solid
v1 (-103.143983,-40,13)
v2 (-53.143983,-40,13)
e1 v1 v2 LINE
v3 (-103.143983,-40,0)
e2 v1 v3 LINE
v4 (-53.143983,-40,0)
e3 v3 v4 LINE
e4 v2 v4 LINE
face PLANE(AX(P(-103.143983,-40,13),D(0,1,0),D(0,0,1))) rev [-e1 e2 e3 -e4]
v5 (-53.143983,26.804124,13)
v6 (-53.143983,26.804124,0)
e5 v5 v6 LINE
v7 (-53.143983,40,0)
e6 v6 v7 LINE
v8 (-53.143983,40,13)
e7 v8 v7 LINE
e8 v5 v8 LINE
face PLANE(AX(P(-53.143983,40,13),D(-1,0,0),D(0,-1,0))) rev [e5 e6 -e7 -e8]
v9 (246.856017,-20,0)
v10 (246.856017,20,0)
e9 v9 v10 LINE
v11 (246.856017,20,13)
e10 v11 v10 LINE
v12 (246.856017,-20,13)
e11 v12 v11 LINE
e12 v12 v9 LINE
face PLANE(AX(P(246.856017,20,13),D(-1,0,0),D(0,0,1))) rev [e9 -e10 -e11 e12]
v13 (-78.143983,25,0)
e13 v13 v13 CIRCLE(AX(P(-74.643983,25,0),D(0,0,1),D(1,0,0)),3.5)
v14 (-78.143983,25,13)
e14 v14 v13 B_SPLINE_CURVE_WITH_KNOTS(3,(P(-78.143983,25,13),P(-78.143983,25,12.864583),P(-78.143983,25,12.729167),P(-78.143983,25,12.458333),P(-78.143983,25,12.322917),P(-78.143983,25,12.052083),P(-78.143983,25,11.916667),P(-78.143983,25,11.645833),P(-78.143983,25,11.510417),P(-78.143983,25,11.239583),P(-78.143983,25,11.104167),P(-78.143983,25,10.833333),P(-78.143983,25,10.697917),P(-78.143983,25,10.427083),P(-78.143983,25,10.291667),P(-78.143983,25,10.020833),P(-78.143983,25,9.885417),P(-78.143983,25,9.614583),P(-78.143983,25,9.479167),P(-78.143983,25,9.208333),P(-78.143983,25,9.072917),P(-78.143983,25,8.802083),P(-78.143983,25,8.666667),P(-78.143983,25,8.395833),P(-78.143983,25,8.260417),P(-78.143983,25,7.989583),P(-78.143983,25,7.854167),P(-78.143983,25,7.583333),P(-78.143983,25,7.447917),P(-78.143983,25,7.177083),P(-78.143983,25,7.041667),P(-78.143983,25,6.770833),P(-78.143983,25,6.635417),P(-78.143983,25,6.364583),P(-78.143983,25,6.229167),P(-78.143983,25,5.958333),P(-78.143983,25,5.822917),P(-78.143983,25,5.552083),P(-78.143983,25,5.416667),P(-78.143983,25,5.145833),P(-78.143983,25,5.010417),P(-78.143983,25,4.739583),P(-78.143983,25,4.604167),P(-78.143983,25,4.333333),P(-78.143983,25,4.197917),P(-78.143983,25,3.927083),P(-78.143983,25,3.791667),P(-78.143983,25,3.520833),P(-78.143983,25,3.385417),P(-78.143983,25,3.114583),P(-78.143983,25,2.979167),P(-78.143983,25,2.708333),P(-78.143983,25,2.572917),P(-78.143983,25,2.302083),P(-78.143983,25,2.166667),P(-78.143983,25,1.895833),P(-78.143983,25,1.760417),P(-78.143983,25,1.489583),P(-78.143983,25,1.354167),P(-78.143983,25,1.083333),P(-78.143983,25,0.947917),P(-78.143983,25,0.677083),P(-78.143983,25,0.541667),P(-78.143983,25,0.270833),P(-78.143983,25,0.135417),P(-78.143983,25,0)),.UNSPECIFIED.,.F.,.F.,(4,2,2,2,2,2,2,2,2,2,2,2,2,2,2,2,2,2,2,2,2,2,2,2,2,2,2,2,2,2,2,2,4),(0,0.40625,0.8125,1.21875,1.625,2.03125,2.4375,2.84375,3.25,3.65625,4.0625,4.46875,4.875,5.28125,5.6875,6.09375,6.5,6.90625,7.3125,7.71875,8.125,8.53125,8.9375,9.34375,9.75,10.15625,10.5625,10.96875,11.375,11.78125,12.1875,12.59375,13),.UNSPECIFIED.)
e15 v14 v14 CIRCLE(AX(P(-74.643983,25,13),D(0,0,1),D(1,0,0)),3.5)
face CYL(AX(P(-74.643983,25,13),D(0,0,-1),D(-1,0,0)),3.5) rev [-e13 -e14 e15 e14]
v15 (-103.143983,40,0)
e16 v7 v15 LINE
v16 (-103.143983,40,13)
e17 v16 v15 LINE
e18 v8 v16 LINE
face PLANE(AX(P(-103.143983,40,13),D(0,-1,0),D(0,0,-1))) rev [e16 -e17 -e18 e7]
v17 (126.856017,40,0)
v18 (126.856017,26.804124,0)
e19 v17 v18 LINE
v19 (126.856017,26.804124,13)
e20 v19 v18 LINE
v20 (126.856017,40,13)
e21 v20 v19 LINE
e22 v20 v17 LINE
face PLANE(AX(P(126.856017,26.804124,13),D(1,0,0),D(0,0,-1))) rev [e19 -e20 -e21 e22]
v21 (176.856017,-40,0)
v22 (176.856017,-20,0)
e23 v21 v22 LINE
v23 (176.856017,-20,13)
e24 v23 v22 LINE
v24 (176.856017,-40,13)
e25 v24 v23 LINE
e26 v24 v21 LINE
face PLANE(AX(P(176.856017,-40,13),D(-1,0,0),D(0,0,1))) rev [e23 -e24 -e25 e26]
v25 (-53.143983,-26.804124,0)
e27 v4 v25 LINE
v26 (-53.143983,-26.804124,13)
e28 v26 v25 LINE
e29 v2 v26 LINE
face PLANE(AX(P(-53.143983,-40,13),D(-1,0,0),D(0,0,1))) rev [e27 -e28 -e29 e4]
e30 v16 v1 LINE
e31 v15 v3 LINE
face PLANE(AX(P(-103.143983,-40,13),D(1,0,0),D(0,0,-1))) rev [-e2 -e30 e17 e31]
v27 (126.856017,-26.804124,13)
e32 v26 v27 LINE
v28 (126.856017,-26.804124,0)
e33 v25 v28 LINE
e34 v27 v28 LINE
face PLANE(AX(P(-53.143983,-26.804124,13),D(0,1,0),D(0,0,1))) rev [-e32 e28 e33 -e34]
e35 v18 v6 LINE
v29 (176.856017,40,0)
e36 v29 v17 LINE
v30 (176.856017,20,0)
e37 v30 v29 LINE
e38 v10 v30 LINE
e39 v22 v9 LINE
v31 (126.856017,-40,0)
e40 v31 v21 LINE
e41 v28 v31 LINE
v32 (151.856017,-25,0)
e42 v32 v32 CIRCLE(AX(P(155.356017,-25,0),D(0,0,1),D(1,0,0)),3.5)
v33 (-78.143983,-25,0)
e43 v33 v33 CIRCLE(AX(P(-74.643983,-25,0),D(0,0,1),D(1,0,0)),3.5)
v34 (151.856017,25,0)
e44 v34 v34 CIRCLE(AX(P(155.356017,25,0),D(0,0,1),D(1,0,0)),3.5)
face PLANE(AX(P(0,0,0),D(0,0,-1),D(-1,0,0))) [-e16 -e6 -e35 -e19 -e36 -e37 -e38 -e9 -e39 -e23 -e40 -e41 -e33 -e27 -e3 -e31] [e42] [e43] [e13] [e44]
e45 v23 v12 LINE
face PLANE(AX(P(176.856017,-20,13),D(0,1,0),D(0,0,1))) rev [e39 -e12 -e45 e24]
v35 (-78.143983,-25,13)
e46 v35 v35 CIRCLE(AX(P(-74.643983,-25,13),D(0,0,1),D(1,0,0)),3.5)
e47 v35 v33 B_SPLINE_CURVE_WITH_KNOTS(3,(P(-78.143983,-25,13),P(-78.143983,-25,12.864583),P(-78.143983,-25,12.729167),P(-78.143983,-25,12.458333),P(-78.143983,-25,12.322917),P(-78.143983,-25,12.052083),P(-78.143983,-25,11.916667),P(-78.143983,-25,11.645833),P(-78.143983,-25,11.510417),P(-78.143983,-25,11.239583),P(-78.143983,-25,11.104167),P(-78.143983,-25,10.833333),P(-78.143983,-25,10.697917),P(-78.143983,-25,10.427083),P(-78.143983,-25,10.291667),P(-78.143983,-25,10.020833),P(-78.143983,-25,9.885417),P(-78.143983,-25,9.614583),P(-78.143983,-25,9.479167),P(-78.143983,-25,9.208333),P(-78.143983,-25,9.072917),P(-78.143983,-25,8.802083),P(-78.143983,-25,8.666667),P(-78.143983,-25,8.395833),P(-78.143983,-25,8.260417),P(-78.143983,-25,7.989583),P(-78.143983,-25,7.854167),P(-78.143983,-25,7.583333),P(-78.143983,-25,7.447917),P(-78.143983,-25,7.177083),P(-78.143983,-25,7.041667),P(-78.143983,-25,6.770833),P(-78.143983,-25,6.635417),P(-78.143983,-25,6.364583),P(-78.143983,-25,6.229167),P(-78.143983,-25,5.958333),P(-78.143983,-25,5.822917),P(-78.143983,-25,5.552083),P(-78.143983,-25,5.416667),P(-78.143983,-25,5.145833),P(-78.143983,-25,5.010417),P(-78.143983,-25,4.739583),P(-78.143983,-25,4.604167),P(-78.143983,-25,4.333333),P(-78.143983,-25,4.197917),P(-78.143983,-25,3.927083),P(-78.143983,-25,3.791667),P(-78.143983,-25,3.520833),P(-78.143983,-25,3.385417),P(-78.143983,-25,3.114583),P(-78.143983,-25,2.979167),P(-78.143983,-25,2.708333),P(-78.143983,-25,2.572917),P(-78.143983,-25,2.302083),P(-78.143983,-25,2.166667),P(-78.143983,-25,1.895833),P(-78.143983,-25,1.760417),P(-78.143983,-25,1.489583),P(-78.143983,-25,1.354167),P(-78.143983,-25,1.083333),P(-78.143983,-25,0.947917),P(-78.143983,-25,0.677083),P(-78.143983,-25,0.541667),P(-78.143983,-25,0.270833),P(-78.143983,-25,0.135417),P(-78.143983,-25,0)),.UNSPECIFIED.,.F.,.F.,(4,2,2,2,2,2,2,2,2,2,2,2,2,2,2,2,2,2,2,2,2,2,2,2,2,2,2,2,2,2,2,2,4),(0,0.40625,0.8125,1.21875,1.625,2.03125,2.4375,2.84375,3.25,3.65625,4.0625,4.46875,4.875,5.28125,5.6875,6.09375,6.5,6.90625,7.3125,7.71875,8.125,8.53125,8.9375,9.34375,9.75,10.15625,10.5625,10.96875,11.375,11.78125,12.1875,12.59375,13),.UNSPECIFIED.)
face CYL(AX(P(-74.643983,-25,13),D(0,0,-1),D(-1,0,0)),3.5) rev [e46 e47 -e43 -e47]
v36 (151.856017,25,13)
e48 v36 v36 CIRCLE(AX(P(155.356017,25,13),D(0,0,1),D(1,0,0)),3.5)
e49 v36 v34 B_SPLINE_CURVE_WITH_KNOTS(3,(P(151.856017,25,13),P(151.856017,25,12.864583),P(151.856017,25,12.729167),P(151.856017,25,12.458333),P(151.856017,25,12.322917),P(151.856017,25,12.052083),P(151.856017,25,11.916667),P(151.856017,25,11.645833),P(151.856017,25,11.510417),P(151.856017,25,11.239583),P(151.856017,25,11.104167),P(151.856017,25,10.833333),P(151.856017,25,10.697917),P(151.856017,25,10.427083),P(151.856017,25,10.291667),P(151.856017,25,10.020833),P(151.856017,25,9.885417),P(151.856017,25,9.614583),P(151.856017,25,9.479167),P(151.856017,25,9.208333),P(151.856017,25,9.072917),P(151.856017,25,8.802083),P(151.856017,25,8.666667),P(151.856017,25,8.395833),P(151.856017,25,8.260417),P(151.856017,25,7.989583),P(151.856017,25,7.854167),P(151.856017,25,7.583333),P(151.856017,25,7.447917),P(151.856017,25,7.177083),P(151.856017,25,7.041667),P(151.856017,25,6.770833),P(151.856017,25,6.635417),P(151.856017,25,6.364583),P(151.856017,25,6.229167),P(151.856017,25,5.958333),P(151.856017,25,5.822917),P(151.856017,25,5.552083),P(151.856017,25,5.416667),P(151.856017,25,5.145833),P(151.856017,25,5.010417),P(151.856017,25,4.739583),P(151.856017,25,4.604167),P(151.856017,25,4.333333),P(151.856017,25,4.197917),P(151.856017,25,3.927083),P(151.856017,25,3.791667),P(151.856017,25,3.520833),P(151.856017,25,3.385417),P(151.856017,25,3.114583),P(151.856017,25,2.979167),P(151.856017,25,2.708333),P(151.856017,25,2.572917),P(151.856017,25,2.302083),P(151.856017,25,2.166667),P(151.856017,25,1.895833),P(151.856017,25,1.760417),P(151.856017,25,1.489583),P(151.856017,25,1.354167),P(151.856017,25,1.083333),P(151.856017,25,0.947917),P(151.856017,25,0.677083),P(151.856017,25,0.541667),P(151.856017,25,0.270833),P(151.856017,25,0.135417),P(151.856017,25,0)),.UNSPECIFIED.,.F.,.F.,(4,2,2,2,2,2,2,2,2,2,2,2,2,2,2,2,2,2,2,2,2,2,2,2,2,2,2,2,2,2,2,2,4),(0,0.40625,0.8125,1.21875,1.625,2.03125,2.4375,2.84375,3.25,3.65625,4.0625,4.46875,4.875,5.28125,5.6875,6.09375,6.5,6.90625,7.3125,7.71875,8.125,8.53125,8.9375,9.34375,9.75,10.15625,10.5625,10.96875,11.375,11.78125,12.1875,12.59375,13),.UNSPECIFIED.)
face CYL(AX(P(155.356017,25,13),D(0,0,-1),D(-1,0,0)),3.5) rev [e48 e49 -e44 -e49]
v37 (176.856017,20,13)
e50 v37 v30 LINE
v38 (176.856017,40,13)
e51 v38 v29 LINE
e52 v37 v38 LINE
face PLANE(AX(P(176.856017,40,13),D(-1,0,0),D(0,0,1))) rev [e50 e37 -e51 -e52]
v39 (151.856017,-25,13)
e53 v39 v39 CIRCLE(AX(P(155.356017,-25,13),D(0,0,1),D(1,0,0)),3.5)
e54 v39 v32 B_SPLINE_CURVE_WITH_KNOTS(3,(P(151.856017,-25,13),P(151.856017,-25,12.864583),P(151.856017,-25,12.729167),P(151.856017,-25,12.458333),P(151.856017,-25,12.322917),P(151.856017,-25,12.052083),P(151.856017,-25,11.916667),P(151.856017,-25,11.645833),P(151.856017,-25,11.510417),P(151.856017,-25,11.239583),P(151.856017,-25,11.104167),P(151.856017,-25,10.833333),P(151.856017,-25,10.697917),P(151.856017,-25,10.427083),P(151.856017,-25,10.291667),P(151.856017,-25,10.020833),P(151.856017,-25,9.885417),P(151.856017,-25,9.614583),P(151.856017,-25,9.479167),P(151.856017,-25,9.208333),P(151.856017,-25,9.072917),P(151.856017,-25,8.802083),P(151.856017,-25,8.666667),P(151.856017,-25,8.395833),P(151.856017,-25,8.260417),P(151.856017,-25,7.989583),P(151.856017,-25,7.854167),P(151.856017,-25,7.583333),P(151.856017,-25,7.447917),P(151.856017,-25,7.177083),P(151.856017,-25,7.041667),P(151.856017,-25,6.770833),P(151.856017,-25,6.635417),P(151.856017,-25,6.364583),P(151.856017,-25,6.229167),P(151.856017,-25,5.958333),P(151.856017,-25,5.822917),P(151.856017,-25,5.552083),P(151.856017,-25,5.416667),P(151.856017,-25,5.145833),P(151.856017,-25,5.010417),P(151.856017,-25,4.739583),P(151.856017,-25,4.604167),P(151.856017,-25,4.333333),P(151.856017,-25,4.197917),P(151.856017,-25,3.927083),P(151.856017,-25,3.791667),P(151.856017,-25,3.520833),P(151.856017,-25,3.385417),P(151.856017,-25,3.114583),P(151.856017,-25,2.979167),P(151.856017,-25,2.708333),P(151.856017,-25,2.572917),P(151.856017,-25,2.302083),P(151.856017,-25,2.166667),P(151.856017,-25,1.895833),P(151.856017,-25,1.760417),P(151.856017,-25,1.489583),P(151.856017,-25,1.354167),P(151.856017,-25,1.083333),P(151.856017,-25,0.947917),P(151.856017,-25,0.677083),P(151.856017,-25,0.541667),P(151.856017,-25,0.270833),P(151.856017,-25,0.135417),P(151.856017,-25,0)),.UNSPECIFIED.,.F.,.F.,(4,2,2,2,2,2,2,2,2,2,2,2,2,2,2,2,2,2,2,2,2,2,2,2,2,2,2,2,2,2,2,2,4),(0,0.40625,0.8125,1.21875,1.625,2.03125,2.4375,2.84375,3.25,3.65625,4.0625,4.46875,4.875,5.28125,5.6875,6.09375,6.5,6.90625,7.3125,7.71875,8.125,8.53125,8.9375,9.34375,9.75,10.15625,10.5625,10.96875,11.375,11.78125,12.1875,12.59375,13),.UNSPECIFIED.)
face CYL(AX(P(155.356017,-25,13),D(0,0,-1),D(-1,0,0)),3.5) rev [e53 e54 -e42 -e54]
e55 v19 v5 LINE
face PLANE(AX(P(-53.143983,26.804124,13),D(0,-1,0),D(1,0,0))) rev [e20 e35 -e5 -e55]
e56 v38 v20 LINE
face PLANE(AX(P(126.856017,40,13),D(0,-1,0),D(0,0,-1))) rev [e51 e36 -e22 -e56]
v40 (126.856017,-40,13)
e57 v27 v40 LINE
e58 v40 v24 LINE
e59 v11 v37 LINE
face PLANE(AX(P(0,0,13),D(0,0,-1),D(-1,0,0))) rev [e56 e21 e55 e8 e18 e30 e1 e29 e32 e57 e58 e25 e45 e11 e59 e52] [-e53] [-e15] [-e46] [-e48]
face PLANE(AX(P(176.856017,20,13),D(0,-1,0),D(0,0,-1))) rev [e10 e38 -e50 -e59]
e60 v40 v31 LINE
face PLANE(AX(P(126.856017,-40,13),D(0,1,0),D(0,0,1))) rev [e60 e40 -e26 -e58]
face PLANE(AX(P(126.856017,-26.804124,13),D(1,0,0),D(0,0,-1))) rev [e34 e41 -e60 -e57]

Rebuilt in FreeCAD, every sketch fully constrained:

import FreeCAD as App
import Part
import Sketcher

V = App.Vector

doc = App.newDocument("Part")
params = doc.addObject("Spreadsheet::Sheet", "Params")
for row, (alias, value) in enumerate([
    ("sketch1_diameter", "7 mm"),
    ("sketch1_width", "50 mm"),
    ("sketch1_width2", "180 mm"),
    ("sketch1_width3", "70 mm"),
    ("sketch1_height", "80 mm"),
    ("pad1_length", "13 mm"),
], start=1):
    params.set(f"A{row}", alias)
    params.set(f"B{row}", "=" + value)
    params.setAlias(f"B{row}", alias)

body = doc.addObject("PartDesign::Body", "Body")

# Sketch on XY plane
sketch1 = doc.addObject("Sketcher::SketchObject", "Sketch")
body.addObject(sketch1)
sketch1.AttachmentSupport = (doc.XY_Plane, [""])
sketch1.MapMode = "FlatFace"
sketch1.addGeometry([
    Part.LineSegment(V(-103.143983, 40, 0), V(-103.143983, -40, 0)),  # 0
    Part.LineSegment(V(-103.143983, -40, 0), V(-53.143983, -40, 0)),  # 1
    Part.LineSegment(V(-53.143983, -40, 0), V(-53.143983, -26.804124, 0)),  # 2
    Part.LineSegment(V(-53.143983, -26.804124, 0), V(126.856017, -26.804124, 0)),  # 3
    Part.LineSegment(V(126.856017, -26.804124, 0), V(126.856017, -40, 0)),  # 4
    Part.LineSegment(V(126.856017, -40, 0), V(176.856017, -40, 0)),  # 5
    Part.LineSegment(V(176.856017, -40, 0), V(176.856017, -20, 0)),  # 6
    Part.LineSegment(V(176.856017, -20, 0), V(246.856017, -20, 0)),  # 7
    Part.LineSegment(V(246.856017, -20, 0), V(246.856017, 20, 0)),  # 8
    Part.LineSegment(V(246.856017, 20, 0), V(176.856017, 20, 0)),  # 9
    Part.LineSegment(V(176.856017, 20, 0), V(176.856017, 40, 0)),  # 10
    Part.LineSegment(V(176.856017, 40, 0), V(126.856017, 40, 0)),  # 11
    Part.LineSegment(V(126.856017, 40, 0), V(126.856017, 26.804124, 0)),  # 12
    Part.LineSegment(V(126.856017, 26.804124, 0), V(-53.143983, 26.804124, 0)),  # 13
    Part.LineSegment(V(-53.143983, 26.804124, 0), V(-53.143983, 40, 0)),  # 14
    Part.LineSegment(V(-53.143983, 40, 0), V(-103.143983, 40, 0)),  # 15
    Part.Circle(V(155.356017, -25, 0), V(0, 0, 1), 3.5),  # 16
    Part.Circle(V(-74.643983, -25, 0), V(0, 0, 1), 3.5),  # 17
    Part.Circle(V(155.356017, 25, 0), V(0, 0, 1), 3.5),  # 18
    Part.Circle(V(-74.643983, 25, 0), V(0, 0, 1), 3.5),  # 19
], False)
sketch1.addConstraint([
    Sketcher.Constraint("Coincident", 0, 2, 1, 1),
    Sketcher.Constraint("Coincident", 1, 2, 2, 1),
    Sketcher.Constraint("Coincident", 2, 2, 3, 1),
    Sketcher.Constraint("Coincident", 3, 2, 4, 1),
    Sketcher.Constraint("Coincident", 4, 2, 5, 1),
    Sketcher.Constraint("Coincident", 5, 2, 6, 1),
    Sketcher.Constraint("Coincident", 6, 2, 7, 1),
    Sketcher.Constraint("Coincident", 7, 2, 8, 1),
    Sketcher.Constraint("Coincident", 8, 2, 9, 1),
    Sketcher.Constraint("Coincident", 9, 2, 10, 1),
    Sketcher.Constraint("Coincident", 10, 2, 11, 1),
    Sketcher.Constraint("Coincident", 11, 2, 12, 1),
    Sketcher.Constraint("Coincident", 12, 2, 13, 1),
    Sketcher.Constraint("Coincident", 13, 2, 14, 1),
    Sketcher.Constraint("Coincident", 14, 2, 15, 1),
    Sketcher.Constraint("Coincident", 15, 2, 0, 1),
    Sketcher.Constraint("Vertical", 0),
    Sketcher.Constraint("Horizontal", 1),
    Sketcher.Constraint("Vertical", 2),
    Sketcher.Constraint("Horizontal", 3),
    Sketcher.Constraint("Vertical", 4),
    Sketcher.Constraint("Horizontal", 5),
    Sketcher.Constraint("Vertical", 6),
    Sketcher.Constraint("Horizontal", 7),
    Sketcher.Constraint("Vertical", 8),
    Sketcher.Constraint("Horizontal", 9),
    Sketcher.Constraint("Vertical", 10),
    Sketcher.Constraint("Horizontal", 11),
    Sketcher.Constraint("Vertical", 12),
    Sketcher.Constraint("Horizontal", 13),
    Sketcher.Constraint("Vertical", 14),
    Sketcher.Constraint("Horizontal", 15),
    Sketcher.Constraint("Equal", 16, 17),
    Sketcher.Constraint("Equal", 17, 18),
    Sketcher.Constraint("Equal", 18, 19),
    Sketcher.Constraint("Symmetric", 16, 3, 18, 3, -1),
    Sketcher.Constraint("Symmetric", 17, 3, 19, 3, -1),
    Sketcher.Constraint("Symmetric", 6, 2, 9, 2, -1),
    Sketcher.Constraint("Symmetric", 4, 2, 11, 2, -1),
    Sketcher.Constraint("Symmetric", 2, 2, 13, 2, -1),
    Sketcher.Constraint("Horizontal", 16, 3, 17, 3),
    Sketcher.Constraint("Horizontal", 1, 2, 4, 2),
    Sketcher.Constraint("Horizontal", 11, 2, 14, 2),
    Sketcher.Constraint("Equal", 1, 5),
    Sketcher.Constraint("Diameter", 16, 7.0),
    Sketcher.Constraint("DistanceX", 1, 1, 1, 2, 50.0),
    Sketcher.Constraint("DistanceX", 3, 1, 3, 2, 180.0),
    Sketcher.Constraint("DistanceX", 7, 1, 7, 2, 70.0),
    Sketcher.Constraint("DistanceY", 0, 2, 0, 1, 80.0),
    Sketcher.Constraint("DistanceY", 6, 1, 6, 2, 20.0),
    Sketcher.Constraint("DistanceY", 16, 3, -1, 1, 25.0),
    Sketcher.Constraint("DistanceX", 17, 3, 16, 3, 230.0),
    Sketcher.Constraint("DistanceX", 0, 2, 17, 3, 28.5),
    Sketcher.Constraint("DistanceY", 2, 1, 2, 2, 13.195876),
    Sketcher.Constraint("DistanceX", -1, 1, 16, 3, 155.356017),
])
sketch1.setExpression("Constraints[44]", "Params.sketch1_diameter")
sketch1.setExpression("Constraints[45]", "Params.sketch1_width")
sketch1.setExpression("Constraints[46]", "Params.sketch1_width2")
sketch1.setExpression("Constraints[47]", "Params.sketch1_width3")
sketch1.setExpression("Constraints[48]", "Params.sketch1_height")
pad1 = doc.addObject("PartDesign::Pad", "Pad")
body.addObject(pad1)
pad1.Profile = sketch1
pad1.setExpression("Length", "Params.pad1_length")

doc.recompute()
